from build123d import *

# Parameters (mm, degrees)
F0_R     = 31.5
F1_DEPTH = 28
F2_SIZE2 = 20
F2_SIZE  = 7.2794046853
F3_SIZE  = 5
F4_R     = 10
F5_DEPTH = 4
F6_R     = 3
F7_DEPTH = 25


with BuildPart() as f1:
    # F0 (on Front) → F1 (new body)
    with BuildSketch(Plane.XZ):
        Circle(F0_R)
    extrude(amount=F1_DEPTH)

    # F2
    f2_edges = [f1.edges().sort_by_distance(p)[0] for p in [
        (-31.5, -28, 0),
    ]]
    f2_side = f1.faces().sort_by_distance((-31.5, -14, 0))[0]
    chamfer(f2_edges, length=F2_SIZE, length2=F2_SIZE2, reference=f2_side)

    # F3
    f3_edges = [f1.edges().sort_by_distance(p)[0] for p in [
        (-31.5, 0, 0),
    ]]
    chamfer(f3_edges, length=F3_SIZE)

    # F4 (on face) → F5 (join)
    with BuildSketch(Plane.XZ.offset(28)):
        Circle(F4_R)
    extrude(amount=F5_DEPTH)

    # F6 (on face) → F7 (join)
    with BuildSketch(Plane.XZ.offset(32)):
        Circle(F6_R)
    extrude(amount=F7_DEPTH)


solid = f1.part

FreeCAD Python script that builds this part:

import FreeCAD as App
import Part
import Sketcher

V = App.Vector
Q = App.Units.Quantity


def edges_at(feature, points):
    """Names of the edges that pass closest to the given points."""
    edges = feature.Shape.Edges
    near = lambda p: min(range(len(edges)), key=lambda i: edges[i].distToShape(Part.Vertex(*p))[0])
    return sorted({f"Edge{near(p) + 1}" for p in points})

doc = App.newDocument("Part")
body = doc.addObject("PartDesign::Body", "Body")

sketch1 = body.newObject("Sketcher::SketchObject", "Sketch")
sketch1.AttachmentSupport = (doc.getObject("XZ_Plane"), [""])
sketch1.MapMode = "FlatFace"
sketch1.addGeometry(Part.Circle(V(0, 0, 0), V(0, 0, 1), 31.5), False)
sketch1.addConstraint([
    Sketcher.Constraint("Coincident", 0, 3, -1, 1),
    Sketcher.Constraint("Diameter", 0, Q("63 mm")),
])
pad1 = body.newObject("PartDesign::Pad", "Pad")
pad1.Profile = sketch1
pad1.Length = 28
doc.recompute()

chamfer = body.newObject("PartDesign::Chamfer", "Chamfer")
chamfer.Base = (pad1, edges_at(pad1, [(-31.5, -28, 0)]))
chamfer.ChamferType = "Two distances"
chamfer.Size = 7.279405
chamfer.Size2 = 20
doc.recompute()

chamfer2 = body.newObject("PartDesign::Chamfer", "Chamfer001")
chamfer2.Base = (chamfer, edges_at(chamfer, [(-31.5, 0, 0)]))
chamfer2.Size = 5

sketch2 = body.newObject("Sketcher::SketchObject", "Sketch001")
sketch2.AttachmentSupport = (doc.getObject("XZ_Plane"), [""])
sketch2.MapMode = "FlatFace"
sketch2.AttachmentOffset = App.Placement(V(0, 0, 28), App.Rotation())
sketch2.addGeometry(Part.Circle(V(0, 0, 0), V(0, 0, 1), 10), False)
sketch2.addConstraint([
    Sketcher.Constraint("Coincident", 0, 3, -1, 1),
    Sketcher.Constraint("Diameter", 0, Q("20 mm")),
])
pad2 = body.newObject("PartDesign::Pad", "Pad001")
pad2.Profile = sketch2
pad2.Length = 4

sketch3 = body.newObject("Sketcher::SketchObject", "Sketch002")
sketch3.AttachmentSupport = (doc.getObject("XZ_Plane"), [""])
sketch3.MapMode = "FlatFace"
sketch3.AttachmentOffset = App.Placement(V(0, 0, 32), App.Rotation())
sketch3.addGeometry(Part.Circle(V(0, 0, 0), V(0, 0, 1), 3), False)
sketch3.addConstraint([
    Sketcher.Constraint("Coincident", 0, 3, -1, 1),
    Sketcher.Constraint("Diameter", 0, Q("6 mm")),
])
pad3 = body.newObject("PartDesign::Pad", "Pad002")
pad3.Profile = sketch3
pad3.Length = 25

doc.recompute()
